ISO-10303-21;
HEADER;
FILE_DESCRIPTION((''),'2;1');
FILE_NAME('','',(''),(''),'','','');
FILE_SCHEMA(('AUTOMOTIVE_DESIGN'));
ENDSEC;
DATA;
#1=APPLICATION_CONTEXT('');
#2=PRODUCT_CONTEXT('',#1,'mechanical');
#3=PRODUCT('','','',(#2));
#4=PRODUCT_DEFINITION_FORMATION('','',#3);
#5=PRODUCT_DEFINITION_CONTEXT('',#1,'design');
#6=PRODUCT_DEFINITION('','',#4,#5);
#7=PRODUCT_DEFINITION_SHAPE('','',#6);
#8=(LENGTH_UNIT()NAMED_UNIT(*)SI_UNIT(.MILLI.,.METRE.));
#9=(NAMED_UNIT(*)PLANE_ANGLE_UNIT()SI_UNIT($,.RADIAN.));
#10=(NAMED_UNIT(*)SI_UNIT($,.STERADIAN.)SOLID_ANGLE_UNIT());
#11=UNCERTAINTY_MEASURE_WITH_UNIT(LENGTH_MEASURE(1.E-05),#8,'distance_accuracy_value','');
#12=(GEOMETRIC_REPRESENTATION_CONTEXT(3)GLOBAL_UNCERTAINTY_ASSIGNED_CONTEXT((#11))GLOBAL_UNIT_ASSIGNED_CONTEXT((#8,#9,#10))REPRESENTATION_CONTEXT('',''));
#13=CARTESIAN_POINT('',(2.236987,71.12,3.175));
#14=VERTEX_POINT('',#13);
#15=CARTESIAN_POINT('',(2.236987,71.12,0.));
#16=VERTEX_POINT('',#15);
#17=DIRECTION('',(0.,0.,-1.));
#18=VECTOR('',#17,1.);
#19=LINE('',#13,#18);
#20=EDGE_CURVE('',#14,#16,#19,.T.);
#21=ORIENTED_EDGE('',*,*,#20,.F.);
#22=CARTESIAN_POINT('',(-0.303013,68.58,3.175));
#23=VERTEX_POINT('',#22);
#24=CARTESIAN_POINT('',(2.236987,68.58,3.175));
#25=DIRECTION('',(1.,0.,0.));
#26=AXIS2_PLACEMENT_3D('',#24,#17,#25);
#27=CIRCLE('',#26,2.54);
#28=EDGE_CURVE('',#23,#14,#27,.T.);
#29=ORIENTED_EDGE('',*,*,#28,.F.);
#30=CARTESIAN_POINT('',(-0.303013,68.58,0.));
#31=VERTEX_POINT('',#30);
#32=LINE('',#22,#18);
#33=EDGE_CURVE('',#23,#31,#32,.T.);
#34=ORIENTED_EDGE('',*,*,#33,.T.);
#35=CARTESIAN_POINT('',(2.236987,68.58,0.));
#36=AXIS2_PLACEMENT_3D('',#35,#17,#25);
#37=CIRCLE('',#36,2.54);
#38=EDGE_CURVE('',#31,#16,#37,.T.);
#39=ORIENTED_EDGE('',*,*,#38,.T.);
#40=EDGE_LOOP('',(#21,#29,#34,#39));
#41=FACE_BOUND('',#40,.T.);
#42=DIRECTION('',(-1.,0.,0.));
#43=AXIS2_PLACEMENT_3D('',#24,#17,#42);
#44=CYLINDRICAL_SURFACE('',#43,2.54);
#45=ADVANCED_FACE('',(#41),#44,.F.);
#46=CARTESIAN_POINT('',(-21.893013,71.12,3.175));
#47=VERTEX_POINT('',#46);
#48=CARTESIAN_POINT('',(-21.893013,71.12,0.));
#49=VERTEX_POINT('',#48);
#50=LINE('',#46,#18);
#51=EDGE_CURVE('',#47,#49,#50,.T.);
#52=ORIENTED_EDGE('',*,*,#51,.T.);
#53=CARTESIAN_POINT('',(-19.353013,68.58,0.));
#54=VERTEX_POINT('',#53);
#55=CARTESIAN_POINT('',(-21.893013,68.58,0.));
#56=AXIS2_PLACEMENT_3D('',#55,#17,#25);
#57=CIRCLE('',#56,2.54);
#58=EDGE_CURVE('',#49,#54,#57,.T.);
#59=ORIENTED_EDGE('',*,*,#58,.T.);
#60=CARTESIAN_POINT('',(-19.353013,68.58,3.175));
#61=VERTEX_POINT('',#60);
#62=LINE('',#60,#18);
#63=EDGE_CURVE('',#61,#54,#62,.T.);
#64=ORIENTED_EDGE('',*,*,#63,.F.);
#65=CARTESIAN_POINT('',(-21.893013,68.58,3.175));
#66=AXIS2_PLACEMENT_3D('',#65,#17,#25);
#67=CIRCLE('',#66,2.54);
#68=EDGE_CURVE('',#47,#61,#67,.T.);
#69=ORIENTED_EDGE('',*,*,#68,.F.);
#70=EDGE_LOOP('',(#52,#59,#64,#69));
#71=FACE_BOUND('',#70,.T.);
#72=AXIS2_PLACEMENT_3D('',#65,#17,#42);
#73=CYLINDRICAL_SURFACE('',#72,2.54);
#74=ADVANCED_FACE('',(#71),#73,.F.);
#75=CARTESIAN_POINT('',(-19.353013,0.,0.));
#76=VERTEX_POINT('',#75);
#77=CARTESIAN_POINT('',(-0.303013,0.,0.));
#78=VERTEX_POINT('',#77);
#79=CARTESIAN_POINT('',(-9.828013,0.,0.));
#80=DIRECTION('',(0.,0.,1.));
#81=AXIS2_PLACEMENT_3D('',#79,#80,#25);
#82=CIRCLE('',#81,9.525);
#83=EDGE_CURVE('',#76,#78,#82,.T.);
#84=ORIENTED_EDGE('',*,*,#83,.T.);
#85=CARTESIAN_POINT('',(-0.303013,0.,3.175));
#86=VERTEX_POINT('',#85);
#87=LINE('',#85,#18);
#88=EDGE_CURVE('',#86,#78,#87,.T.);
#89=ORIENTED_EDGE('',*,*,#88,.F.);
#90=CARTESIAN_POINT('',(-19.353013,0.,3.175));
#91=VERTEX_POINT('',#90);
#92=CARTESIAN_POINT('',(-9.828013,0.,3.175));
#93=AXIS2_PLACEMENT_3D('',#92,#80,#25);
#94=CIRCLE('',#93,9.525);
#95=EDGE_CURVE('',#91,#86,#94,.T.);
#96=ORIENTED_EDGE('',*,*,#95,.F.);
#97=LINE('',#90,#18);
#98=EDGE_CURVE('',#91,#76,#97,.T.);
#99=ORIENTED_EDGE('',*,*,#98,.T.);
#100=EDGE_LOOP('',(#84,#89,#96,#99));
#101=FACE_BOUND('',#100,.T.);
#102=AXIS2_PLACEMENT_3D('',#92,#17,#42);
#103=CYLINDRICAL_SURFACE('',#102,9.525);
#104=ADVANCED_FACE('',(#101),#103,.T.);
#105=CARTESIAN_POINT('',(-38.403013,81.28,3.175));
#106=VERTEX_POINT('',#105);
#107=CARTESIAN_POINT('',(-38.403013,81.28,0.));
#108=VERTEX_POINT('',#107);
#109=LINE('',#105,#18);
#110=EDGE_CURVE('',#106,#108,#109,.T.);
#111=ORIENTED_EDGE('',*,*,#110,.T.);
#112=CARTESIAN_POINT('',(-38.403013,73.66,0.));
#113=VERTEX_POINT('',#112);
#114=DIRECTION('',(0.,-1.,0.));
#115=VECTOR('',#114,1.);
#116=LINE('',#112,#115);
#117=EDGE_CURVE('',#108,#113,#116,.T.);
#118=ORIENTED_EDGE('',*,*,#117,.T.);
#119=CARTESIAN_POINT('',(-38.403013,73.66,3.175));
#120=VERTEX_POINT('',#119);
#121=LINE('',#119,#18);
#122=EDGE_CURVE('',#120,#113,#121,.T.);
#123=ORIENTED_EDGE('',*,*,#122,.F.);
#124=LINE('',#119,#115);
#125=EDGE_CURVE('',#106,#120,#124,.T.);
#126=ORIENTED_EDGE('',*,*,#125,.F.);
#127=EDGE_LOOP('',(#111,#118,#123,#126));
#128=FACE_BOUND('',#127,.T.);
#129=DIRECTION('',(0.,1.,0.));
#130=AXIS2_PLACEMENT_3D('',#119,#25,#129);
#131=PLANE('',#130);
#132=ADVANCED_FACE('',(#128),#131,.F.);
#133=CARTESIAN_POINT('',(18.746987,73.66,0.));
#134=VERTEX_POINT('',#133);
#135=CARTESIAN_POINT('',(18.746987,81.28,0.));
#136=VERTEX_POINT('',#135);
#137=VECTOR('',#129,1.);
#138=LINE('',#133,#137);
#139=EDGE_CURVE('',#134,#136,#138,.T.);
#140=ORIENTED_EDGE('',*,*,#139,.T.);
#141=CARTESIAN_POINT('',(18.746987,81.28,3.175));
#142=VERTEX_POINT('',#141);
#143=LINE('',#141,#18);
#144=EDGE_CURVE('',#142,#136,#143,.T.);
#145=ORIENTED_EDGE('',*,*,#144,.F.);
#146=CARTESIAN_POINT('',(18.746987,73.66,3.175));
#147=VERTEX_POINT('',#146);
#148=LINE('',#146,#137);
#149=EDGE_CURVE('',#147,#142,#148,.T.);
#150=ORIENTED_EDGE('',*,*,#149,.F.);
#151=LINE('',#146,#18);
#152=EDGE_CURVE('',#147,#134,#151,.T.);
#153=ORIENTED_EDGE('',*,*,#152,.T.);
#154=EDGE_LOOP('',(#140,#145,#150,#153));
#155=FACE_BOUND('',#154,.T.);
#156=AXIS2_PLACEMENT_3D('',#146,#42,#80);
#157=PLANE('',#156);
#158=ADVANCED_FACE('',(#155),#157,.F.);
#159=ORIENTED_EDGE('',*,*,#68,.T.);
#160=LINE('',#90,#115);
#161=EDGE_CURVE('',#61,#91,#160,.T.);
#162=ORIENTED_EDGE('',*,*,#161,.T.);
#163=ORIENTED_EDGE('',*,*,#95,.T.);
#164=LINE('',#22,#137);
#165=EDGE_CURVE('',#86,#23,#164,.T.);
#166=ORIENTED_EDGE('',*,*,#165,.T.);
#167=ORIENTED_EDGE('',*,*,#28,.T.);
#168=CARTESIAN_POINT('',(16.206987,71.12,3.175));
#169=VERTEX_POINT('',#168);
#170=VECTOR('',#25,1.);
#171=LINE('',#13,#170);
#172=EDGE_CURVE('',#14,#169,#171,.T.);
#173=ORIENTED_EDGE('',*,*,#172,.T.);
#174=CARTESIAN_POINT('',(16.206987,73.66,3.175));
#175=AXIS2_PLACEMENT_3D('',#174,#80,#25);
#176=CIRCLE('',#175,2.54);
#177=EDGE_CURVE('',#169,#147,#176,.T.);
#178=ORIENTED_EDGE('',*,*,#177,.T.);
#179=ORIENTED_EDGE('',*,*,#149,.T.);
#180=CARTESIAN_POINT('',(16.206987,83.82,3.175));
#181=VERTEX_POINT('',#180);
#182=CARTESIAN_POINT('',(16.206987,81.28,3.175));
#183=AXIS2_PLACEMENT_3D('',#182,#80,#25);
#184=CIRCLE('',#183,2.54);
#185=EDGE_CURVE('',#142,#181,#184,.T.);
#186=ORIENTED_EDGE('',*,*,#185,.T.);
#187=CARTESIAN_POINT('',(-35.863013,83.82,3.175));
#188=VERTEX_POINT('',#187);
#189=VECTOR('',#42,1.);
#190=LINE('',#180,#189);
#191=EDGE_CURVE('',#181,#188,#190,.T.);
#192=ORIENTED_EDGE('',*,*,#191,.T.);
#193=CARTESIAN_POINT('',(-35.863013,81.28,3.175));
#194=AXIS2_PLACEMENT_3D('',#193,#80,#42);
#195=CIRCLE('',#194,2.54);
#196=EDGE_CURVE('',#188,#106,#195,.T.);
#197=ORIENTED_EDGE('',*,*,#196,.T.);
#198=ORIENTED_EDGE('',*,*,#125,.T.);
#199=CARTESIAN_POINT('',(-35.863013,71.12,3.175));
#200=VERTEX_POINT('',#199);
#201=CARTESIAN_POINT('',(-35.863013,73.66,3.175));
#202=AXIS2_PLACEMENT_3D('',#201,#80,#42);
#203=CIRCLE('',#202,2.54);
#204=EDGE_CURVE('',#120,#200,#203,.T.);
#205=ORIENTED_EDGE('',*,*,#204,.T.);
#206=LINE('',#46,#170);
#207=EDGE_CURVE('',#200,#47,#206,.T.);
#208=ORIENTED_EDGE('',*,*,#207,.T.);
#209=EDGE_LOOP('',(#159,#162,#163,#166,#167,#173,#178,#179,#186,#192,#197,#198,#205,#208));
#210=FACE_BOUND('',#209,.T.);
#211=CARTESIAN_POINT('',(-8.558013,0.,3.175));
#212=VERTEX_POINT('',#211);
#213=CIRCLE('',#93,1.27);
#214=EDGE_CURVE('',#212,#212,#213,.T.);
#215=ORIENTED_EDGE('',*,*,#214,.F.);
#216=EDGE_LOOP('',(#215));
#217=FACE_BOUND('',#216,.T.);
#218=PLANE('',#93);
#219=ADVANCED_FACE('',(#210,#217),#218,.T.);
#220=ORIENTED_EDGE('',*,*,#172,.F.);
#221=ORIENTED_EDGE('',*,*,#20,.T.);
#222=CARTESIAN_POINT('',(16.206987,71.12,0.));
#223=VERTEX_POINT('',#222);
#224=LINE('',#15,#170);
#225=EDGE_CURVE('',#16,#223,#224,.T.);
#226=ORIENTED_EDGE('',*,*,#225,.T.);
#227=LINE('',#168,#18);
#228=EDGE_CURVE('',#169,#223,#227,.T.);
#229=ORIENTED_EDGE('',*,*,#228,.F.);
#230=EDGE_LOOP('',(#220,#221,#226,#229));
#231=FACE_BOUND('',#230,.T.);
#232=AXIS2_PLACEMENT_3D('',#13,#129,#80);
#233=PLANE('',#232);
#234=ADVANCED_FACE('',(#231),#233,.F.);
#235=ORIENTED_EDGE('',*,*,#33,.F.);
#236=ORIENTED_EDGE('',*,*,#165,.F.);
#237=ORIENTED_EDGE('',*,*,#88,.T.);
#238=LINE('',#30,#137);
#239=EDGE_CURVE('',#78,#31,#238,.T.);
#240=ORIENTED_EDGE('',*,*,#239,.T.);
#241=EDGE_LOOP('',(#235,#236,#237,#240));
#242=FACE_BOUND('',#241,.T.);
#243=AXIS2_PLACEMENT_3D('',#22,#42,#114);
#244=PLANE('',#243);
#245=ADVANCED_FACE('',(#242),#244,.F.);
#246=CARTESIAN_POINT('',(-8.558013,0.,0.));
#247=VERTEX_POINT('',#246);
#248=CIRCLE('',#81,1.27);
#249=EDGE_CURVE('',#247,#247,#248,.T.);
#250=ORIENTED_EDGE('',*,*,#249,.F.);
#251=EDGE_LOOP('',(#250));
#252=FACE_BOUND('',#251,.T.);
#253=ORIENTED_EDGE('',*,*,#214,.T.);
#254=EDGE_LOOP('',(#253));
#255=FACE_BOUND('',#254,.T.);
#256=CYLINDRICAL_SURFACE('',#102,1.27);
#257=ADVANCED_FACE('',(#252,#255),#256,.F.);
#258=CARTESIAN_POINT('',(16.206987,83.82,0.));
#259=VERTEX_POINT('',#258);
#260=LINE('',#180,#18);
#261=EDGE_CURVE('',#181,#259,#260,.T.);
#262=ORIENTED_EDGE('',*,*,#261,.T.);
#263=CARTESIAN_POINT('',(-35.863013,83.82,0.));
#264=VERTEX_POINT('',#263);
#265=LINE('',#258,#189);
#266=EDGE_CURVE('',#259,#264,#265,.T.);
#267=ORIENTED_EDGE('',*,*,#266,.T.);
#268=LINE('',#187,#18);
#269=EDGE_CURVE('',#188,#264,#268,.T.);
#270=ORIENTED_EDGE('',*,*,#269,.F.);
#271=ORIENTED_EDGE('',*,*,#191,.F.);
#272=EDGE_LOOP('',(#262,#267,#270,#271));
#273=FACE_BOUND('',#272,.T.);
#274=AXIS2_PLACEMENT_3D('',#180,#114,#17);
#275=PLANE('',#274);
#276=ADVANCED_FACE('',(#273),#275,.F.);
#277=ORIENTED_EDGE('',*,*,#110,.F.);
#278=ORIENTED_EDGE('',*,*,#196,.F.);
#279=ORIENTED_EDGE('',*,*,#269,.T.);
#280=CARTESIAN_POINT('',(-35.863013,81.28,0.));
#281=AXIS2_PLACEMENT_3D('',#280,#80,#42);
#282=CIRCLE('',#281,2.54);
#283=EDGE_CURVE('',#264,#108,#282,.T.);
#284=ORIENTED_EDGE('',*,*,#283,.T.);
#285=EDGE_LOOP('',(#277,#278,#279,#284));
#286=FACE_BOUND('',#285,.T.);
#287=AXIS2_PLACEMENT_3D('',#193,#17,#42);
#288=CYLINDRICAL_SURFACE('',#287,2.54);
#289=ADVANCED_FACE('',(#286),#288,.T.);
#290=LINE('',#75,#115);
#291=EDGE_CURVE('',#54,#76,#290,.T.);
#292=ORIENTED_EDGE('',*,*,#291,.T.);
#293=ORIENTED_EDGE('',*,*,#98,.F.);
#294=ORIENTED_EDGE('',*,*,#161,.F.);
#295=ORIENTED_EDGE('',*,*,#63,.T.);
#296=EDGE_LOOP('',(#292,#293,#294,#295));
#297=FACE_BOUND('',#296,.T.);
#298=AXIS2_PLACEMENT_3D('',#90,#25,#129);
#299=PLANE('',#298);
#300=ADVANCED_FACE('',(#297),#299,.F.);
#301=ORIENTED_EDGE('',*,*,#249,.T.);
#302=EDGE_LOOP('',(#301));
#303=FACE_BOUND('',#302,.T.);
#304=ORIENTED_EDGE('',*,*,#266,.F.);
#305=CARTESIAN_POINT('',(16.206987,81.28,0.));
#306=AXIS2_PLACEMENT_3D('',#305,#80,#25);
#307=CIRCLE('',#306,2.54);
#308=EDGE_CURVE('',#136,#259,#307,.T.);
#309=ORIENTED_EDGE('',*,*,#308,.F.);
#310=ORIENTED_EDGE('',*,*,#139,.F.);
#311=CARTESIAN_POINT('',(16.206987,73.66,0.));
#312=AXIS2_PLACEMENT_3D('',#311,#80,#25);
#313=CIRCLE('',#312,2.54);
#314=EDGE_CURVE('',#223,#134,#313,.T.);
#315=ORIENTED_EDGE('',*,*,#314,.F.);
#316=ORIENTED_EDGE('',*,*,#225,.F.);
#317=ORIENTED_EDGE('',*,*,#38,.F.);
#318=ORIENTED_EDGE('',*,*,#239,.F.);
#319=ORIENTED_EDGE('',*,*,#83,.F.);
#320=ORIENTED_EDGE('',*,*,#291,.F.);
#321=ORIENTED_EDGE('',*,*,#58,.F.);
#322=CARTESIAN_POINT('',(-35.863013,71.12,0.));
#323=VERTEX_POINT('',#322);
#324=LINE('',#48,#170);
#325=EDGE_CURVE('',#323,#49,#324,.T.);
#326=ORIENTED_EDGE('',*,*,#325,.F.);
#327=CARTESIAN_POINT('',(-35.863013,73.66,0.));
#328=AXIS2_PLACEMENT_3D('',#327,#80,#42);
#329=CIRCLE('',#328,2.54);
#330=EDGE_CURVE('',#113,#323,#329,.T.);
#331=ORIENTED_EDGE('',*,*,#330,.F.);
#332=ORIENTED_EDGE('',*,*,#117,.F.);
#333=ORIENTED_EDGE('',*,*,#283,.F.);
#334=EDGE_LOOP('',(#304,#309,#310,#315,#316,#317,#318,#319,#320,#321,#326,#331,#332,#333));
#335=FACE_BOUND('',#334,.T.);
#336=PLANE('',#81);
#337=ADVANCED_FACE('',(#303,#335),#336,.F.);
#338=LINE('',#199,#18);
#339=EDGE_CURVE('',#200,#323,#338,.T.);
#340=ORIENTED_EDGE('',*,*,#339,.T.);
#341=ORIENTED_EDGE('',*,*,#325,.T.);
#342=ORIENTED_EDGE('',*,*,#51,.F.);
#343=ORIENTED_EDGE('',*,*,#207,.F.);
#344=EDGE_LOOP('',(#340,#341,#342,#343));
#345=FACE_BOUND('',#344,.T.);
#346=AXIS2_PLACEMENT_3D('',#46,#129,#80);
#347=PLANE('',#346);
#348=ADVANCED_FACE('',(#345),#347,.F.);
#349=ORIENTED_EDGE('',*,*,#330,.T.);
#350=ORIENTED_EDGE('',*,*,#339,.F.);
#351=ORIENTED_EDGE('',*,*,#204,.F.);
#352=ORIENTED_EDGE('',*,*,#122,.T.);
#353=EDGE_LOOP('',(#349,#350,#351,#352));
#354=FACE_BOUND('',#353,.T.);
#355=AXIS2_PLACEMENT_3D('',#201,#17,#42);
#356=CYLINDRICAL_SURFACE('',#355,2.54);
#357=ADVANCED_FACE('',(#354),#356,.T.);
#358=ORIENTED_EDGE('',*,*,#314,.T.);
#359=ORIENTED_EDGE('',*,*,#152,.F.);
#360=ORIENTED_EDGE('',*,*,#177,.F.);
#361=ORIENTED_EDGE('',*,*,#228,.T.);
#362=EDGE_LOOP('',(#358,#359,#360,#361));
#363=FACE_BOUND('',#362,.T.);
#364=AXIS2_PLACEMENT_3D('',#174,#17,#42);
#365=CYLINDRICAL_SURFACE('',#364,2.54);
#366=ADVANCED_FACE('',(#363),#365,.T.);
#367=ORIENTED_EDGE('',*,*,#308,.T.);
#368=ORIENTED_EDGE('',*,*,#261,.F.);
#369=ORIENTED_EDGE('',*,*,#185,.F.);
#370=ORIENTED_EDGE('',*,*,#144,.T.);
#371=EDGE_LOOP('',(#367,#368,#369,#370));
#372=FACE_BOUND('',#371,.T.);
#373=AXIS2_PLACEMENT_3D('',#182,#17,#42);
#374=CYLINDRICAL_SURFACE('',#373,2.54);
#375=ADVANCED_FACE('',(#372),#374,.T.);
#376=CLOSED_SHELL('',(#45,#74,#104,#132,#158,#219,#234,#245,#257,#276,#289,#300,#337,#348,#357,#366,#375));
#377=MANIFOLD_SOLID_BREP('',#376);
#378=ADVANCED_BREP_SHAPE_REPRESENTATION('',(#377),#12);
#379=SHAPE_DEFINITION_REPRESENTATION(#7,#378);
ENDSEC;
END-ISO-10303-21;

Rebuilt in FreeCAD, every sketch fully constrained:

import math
import FreeCAD as App
import Part
import Sketcher

V = App.Vector
Q = App.Units.Quantity

doc = App.newDocument("Part")
params = doc.addObject("Spreadsheet::Sheet", "Params")
for row, (alias, value) in enumerate([
    ("sketch1_diameter", "0.1 in"),
    ("sketch1_radius", "0.1 in"),
    ("sketch1_height", "2.7 in"),
    ("sketch1_height2", "0.3 in"),
    ("sketch1_radius2", "0.375 in"),
    ("pad1_length", "0.125 in"),
], start=1):
    params.set(f"A{row}", alias)
    params.set(f"B{row}", "=" + value)
    params.setAlias(f"B{row}", alias)

body = doc.addObject("PartDesign::Body", "Body")

# Sketch on XY plane
sketch1 = doc.addObject("Sketcher::SketchObject", "Sketch")
body.addObject(sketch1)
sketch1.AttachmentSupport = (doc.XY_Plane, [""])
sketch1.MapMode = "FlatFace"
sketch1.addGeometry([
    Part.LineSegment(V(-19.4, 68.6, 0), V(-19.4, 0, 0)),  # 0
    Part.ArcOfCircle(Part.Circle(V(-9.8, 0, 0), V(0, 0, 1), 9.5), math.radians(180), math.radians(360)),  # 1
    Part.LineSegment(V(-0.3, 0, 0), V(-0.3, 68.6, 0)),  # 2
    Part.ArcOfCircle(Part.Circle(V(2.2, 68.6, 0), V(0, 0, 1), 2.5), math.radians(90), math.radians(180)),  # 3
    Part.LineSegment(V(2.2, 71.1, 0), V(16.2, 71.1, 0)),  # 4
    Part.ArcOfCircle(Part.Circle(V(16.2, 73.7, 0), V(0, 0, 1), 2.5), math.radians(-90), math.radians(0)),  # 5
    Part.LineSegment(V(18.7, 73.7, 0), V(18.7, 81.3, 0)),  # 6
    Part.ArcOfCircle(Part.Circle(V(16.2, 81.3, 0), V(0, 0, 1), 2.5), math.radians(0), math.radians(90)),  # 7
    Part.LineSegment(V(16.2, 83.8, 0), V(-35.9, 83.8, 0)),  # 8
    Part.ArcOfCircle(Part.Circle(V(-35.9, 81.3, 0), V(0, 0, 1), 2.5), math.radians(90), math.radians(180)),  # 9
    Part.LineSegment(V(-38.4, 81.3, 0), V(-38.4, 73.7, 0)),  # 10
    Part.ArcOfCircle(Part.Circle(V(-35.9, 73.7, 0), V(0, 0, 1), 2.5), math.radians(180), math.radians(270)),  # 11
    Part.LineSegment(V(-35.9, 71.1, 0), V(-21.9, 71.1, 0)),  # 12
    Part.ArcOfCircle(Part.Circle(V(-21.9, 68.6, 0), V(0, 0, 1), 2.5), math.radians(0), math.radians(90)),  # 13
    Part.Circle(V(-9.8, 0, 0), V(0, 0, 1), 1.3),  # 14
], False)
sketch1.addConstraint([
    Sketcher.Constraint("Tangent", 0, 2, 1, 1),
    Sketcher.Constraint("Tangent", 1, 2, 2, 1),
    Sketcher.Constraint("Tangent", 2, 2, 3, 2),
    Sketcher.Constraint("Tangent", 3, 1, 4, 1),
    Sketcher.Constraint("Tangent", 4, 2, 5, 1),
    Sketcher.Constraint("Tangent", 5, 2, 6, 1),
    Sketcher.Constraint("Tangent", 6, 2, 7, 1),
    Sketcher.Constraint("Tangent", 7, 2, 8, 1),
    Sketcher.Constraint("Tangent", 8, 2, 9, 1),
    Sketcher.Constraint("Tangent", 9, 2, 10, 1),
    Sketcher.Constraint("Tangent", 10, 2, 11, 1),
    Sketcher.Constraint("Tangent", 11, 2, 12, 1),
    Sketcher.Constraint("Tangent", 12, 2, 13, 2),
    Sketcher.Constraint("Tangent", 13, 1, 0, 1),
    Sketcher.Constraint("Vertical", 0),
    Sketcher.Constraint("Vertical", 2),
    Sketcher.Constraint("Horizontal", 4),
    Sketcher.Constraint("Vertical", 6),
    Sketcher.Constraint("Horizontal", 8),
    Sketcher.Constraint("Vertical", 10),
    Sketcher.Constraint("Horizontal", 12),
    Sketcher.Constraint("Coincident", 14, 3, 1, 3),
    Sketcher.Constraint("Equal", 3, 5),
    Sketcher.Constraint("Equal", 5, 7),
    Sketcher.Constraint("Equal", 7, 9),
    Sketcher.Constraint("Equal", 9, 11),
    Sketcher.Constraint("Equal", 11, 13),
    Sketcher.Constraint("PointOnObject", 1, 3, -1),
    Sketcher.Constraint("Horizontal", 5, 3, 11, 3),
    Sketcher.Constraint("Equal", 4, 12),
    Sketcher.Constraint("Diameter", 14, Q("0.1 in")),
    Sketcher.Constraint("Radius", 3, Q("0.1 in")),
    Sketcher.Constraint("DistanceY", 0, 2, 0, 1, Q("2.7 in")),
    Sketcher.Constraint("DistanceY", 6, 1, 6, 2, Q("0.3 in")),
    Sketcher.Constraint("Radius", 1, Q("0.375 in")),
    Sketcher.Constraint("DistanceX", 4, 1, 4, 2, Q("0.55 in")),
    Sketcher.Constraint("DistanceX", 1, 3, -1, 1, 9.828013),
])
sketch1.setExpression("Constraints[30]", "Params.sketch1_diameter")
sketch1.setExpression("Constraints[31]", "Params.sketch1_radius")
sketch1.setExpression("Constraints[32]", "Params.sketch1_height")
sketch1.setExpression("Constraints[33]", "Params.sketch1_height2")
sketch1.setExpression("Constraints[34]", "Params.sketch1_radius2")
pad1 = doc.addObject("PartDesign::Pad", "Pad")
body.addObject(pad1)
pad1.Profile = sketch1
pad1.setExpression("Length", "Params.pad1_length")

doc.recompute()
